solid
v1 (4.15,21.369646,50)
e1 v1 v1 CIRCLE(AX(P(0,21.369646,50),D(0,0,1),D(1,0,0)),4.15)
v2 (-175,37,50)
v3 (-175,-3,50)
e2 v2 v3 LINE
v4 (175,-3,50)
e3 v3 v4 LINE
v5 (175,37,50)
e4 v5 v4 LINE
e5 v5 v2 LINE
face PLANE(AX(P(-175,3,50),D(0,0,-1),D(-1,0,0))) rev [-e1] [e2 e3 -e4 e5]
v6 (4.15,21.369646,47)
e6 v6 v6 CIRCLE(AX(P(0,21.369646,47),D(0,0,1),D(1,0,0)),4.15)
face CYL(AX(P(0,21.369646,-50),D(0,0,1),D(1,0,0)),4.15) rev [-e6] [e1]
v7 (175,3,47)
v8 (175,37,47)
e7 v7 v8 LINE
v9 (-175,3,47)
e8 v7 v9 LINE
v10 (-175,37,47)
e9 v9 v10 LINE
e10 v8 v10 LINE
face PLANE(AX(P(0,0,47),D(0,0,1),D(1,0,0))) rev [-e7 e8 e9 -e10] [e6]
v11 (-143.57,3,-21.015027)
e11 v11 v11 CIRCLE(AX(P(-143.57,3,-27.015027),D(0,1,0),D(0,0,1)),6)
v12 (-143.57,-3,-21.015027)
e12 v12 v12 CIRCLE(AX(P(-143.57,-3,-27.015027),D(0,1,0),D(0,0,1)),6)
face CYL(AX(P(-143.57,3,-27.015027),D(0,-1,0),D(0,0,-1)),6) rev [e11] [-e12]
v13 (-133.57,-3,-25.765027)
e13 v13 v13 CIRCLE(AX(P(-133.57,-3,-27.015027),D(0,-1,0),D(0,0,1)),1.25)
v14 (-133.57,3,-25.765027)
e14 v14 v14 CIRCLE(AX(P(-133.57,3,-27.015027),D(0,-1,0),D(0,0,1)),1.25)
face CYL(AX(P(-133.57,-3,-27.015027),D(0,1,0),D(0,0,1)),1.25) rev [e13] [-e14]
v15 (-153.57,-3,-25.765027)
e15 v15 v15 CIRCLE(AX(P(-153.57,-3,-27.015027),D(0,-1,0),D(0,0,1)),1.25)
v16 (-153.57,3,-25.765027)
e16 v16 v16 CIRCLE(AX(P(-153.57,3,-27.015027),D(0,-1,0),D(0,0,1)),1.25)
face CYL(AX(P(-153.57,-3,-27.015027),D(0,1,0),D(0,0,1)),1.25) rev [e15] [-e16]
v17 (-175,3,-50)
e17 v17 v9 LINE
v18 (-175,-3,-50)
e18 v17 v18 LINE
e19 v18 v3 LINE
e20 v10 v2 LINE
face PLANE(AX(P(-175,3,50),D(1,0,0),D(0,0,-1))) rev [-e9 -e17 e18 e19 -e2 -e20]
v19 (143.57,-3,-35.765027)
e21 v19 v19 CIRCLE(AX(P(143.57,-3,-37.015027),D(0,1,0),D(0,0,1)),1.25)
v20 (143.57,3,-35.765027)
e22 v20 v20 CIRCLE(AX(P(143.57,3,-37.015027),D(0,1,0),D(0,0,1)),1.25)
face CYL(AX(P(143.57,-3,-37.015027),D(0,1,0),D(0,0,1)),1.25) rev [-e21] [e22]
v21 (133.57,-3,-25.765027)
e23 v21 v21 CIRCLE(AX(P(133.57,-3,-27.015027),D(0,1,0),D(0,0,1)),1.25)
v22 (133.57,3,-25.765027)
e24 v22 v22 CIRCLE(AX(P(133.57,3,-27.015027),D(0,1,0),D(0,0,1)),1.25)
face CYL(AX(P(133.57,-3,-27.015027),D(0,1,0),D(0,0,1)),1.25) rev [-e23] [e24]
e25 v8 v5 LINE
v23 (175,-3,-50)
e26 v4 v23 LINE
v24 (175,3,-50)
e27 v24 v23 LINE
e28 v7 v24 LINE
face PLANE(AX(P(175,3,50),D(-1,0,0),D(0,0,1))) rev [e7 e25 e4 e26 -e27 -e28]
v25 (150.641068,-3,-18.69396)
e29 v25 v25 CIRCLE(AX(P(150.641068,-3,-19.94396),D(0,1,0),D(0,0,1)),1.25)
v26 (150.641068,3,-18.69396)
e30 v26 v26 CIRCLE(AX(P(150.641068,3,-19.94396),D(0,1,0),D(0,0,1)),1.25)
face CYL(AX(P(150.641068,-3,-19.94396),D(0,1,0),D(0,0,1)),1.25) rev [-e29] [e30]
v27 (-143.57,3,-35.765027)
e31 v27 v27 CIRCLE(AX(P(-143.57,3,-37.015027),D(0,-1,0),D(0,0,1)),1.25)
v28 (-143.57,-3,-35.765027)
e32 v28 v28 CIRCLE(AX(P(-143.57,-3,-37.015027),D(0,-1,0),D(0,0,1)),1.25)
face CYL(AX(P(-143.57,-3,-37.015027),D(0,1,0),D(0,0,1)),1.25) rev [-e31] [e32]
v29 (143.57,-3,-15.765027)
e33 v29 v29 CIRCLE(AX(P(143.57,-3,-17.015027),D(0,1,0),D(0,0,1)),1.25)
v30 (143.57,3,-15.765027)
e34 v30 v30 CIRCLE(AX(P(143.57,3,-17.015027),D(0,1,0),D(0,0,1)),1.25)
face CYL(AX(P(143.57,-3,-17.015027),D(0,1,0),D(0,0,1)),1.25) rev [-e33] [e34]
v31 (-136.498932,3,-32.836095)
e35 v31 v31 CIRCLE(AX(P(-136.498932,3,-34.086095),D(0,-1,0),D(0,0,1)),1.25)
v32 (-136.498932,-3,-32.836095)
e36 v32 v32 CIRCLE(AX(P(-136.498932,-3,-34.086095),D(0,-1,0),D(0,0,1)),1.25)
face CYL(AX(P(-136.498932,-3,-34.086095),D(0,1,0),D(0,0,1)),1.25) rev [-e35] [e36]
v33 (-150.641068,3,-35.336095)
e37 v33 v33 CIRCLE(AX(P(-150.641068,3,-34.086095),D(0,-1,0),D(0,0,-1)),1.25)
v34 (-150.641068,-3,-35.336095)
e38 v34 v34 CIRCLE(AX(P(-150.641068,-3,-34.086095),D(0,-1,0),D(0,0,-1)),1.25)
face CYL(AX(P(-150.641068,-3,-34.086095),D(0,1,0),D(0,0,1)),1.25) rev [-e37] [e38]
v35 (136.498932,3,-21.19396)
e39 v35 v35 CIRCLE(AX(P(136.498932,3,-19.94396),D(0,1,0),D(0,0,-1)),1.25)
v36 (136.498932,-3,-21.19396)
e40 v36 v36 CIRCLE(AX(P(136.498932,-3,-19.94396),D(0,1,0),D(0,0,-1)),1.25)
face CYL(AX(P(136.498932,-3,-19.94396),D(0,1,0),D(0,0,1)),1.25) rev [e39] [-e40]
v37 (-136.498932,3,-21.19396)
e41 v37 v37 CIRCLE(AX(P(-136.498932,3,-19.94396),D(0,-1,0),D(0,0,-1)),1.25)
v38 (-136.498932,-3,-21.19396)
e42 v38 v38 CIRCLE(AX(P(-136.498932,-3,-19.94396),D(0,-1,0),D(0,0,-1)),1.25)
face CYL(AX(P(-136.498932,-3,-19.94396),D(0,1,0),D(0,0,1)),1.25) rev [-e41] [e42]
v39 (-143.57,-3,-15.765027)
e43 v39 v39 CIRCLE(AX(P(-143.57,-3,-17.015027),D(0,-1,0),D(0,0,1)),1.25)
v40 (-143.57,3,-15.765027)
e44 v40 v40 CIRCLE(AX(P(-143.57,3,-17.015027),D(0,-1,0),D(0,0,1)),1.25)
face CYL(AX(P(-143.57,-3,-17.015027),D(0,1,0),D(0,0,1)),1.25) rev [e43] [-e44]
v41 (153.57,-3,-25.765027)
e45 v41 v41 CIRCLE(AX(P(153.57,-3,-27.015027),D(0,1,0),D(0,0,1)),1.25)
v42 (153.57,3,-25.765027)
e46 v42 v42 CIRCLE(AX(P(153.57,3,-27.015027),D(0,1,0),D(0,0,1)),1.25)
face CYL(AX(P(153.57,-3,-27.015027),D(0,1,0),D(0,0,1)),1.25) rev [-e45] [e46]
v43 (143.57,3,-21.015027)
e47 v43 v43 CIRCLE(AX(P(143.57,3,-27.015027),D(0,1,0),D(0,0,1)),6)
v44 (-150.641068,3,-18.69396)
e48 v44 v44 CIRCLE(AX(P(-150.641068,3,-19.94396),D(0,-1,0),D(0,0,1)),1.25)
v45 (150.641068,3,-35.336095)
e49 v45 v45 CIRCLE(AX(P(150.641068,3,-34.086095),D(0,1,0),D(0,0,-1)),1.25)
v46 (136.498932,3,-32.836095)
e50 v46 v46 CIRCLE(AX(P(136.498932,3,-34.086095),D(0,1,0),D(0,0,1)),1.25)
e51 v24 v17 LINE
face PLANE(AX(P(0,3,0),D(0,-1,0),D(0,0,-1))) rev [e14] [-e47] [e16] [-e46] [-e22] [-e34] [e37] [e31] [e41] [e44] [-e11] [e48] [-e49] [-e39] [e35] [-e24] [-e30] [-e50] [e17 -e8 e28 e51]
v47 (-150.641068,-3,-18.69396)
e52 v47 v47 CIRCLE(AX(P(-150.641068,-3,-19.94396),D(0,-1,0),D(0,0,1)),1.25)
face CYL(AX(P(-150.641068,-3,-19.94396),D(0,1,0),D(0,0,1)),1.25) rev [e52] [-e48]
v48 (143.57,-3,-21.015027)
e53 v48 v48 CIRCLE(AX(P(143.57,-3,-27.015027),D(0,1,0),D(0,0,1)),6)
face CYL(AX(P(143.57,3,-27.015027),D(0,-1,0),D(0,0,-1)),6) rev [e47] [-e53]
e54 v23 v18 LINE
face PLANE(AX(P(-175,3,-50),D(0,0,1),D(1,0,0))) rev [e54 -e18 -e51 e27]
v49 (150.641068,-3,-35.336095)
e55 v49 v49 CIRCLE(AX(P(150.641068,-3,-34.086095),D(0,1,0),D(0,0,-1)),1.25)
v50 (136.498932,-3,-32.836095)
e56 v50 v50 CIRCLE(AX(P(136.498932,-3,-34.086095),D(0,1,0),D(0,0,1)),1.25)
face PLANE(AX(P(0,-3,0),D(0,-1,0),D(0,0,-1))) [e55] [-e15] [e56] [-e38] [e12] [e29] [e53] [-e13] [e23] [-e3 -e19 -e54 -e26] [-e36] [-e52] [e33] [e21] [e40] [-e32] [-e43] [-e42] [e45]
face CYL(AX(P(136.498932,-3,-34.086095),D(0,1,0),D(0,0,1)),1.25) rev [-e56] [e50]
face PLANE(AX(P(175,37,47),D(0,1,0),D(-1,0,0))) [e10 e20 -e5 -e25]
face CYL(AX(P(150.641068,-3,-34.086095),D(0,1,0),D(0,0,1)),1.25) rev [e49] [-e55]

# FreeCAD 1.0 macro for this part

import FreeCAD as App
import Part
import Sketcher

V = App.Vector
Q = App.Units.Quantity

doc = App.newDocument("Part")
params = doc.addObject("Spreadsheet::Sheet", "Params")
for row, (alias, value) in enumerate([
    ("sketch1_diameter", "12 mm"),
    ("sketch1_width", "350 mm"),
    ("sketch1_height", "100 mm"),
    ("pad1_length", "6 mm"),
    ("sketch2_width", "350 mm"),
    ("sketch2_height", "40 mm"),
    ("pad2_length", "3 mm"),
    ("sketch3_diameter", "8.3 mm"),
    ("sketch4_diameter", "2.5 mm"),
], start=1):
    params.set(f"A{row}", alias)
    params.set(f"B{row}", "=" + value)
    params.setAlias(f"B{row}", alias)

body = doc.addObject("PartDesign::Body", "Body")

# Sketch on XZ plane
sketch1 = doc.addObject("Sketcher::SketchObject", "Sketch")
body.addObject(sketch1)
sketch1.AttachmentSupport = (doc.XZ_Plane, [""])
sketch1.MapMode = "FlatFace"
sketch1.addGeometry(Part.LineSegment(V(-175, -50, 0), V(-175, 50, 0)), False)
sketch1.addGeometry(Part.LineSegment(V(-175, 50, 0), V(175, 50, 0)), False)
sketch1.addGeometry(Part.LineSegment(V(175, 50, 0), V(175, -50, 0)), False)
sketch1.addGeometry(Part.LineSegment(V(175, -50, 0), V(-175, -50, 0)), False)
sketch1.addGeometry(Part.Circle(V(-144, -27, 0), V(0, 0, 1), 6), False)
sketch1.addGeometry(Part.Circle(V(144, -27, 0), V(0, 0, 1), 6), False)
sketch1.addConstraint(Sketcher.Constraint("Coincident", 0, 2, 1, 1))
sketch1.addConstraint(Sketcher.Constraint("Coincident", 1, 2, 2, 1))
sketch1.addConstraint(Sketcher.Constraint("Coincident", 2, 2, 3, 1))
sketch1.addConstraint(Sketcher.Constraint("Coincident", 3, 2, 0, 1))
sketch1.addConstraint(Sketcher.Constraint("Vertical", 0))
sketch1.addConstraint(Sketcher.Constraint("Horizontal", 1))
sketch1.addConstraint(Sketcher.Constraint("Vertical", 2))
sketch1.addConstraint(Sketcher.Constraint("Horizontal", 3))
sketch1.addConstraint(Sketcher.Constraint("Equal", 4, 5))
sketch1.addConstraint(Sketcher.Constraint("Symmetric", 0, 2, 2, 2, -1, 1))
sketch1.addConstraint(Sketcher.Constraint("Symmetric", 4, 3, 5, 3, -2))
sketch1.addConstraint(Sketcher.Constraint("Diameter", 4, Q("12 mm")))
sketch1.addConstraint(Sketcher.Constraint("DistanceX", 1, 1, 1, 2, Q("350 mm")))
sketch1.addConstraint(Sketcher.Constraint("DistanceY", 0, 1, 0, 2, Q("100 mm")))
sketch1.addConstraint(Sketcher.Constraint("DistanceX", 4, 3, -1, 1, Q("143.57 mm")))
sketch1.addConstraint(Sketcher.Constraint("DistanceY", 4, 3, -1, 1, Q("27.015027 mm")))
sketch1.setExpression("Constraints[11]", "Params.sketch1_diameter")
sketch1.setExpression("Constraints[12]", "Params.sketch1_width")
sketch1.setExpression("Constraints[13]", "Params.sketch1_height")
pad1 = doc.addObject("PartDesign::Pad", "Pad")
body.addObject(pad1)
pad1.Profile = sketch1
pad1.setExpression("Length", "Params.pad1_length")
pad1.Midplane = True

# Sketch on XY plane
sketch2 = doc.addObject("Sketcher::SketchObject", "Sketch001")
body.addObject(sketch2)
sketch2.AttachmentSupport = (doc.XY_Plane, [""])
sketch2.MapMode = "FlatFace"
sketch2.AttachmentOffset = App.Placement(V(0, 0, 50), App.Rotation())
sketch2.addGeometry(Part.LineSegment(V(-175, 37, 0), V(-175, -3, 0)), False)
sketch2.addGeometry(Part.LineSegment(V(-175, -3, 0), V(175, -3, 0)), False)
sketch2.addGeometry(Part.LineSegment(V(175, -3, 0), V(175, 37, 0)), False)
sketch2.addGeometry(Part.LineSegment(V(175, 37, 0), V(-175, 37, 0)), False)
sketch2.addConstraint(Sketcher.Constraint("Coincident", 0, 2, 1, 1))
sketch2.addConstraint(Sketcher.Constraint("Coincident", 1, 2, 2, 1))
sketch2.addConstraint(Sketcher.Constraint("Coincident", 2, 2, 3, 1))
sketch2.addConstraint(Sketcher.Constraint("Coincident", 3, 2, 0, 1))
sketch2.addConstraint(Sketcher.Constraint("Vertical", 0))
sketch2.addConstraint(Sketcher.Constraint("Horizontal", 1))
sketch2.addConstraint(Sketcher.Constraint("Vertical", 2))
sketch2.addConstraint(Sketcher.Constraint("Horizontal", 3))
sketch2.addConstraint(Sketcher.Constraint("DistanceX", 1, 1, 1, 2, Q("350 mm")))
sketch2.addConstraint(Sketcher.Constraint("DistanceY", 0, 2, 0, 1, Q("40 mm")))
sketch2.addConstraint(Sketcher.Constraint("DistanceX", 0, 2, -1, 1, Q("175 mm")))
sketch2.addConstraint(Sketcher.Constraint("DistanceY", 0, 2, -1, 1, Q("3 mm")))
sketch2.setExpression("Constraints[8]", "Params.sketch2_width")
sketch2.setExpression("Constraints[9]", "Params.sketch2_height")
pad2 = doc.addObject("PartDesign::Pad", "Pad001")
body.addObject(pad2)
pad2.Profile = sketch2
pad2.setExpression("Length", "Params.pad2_length")
pad2.Reversed = True

# Sketch on XY plane
sketch3 = doc.addObject("Sketcher::SketchObject", "Sketch002")
body.addObject(sketch3)
sketch3.AttachmentSupport = (doc.XY_Plane, [""])
sketch3.MapMode = "FlatFace"
sketch3.AttachmentOffset = App.Placement(V(0, 0, 50), App.Rotation())
sketch3.addGeometry(Part.Circle(V(0, 21.4, 0), V(0, 0, 1), 4.2), False)
sketch3.addConstraint(Sketcher.Constraint("PointOnObject", 0, 3, -2))
sketch3.addConstraint(Sketcher.Constraint("Diameter", 0, Q("8.3 mm")))
sketch3.addConstraint(Sketcher.Constraint("DistanceY", -1, 1, 0, 3, Q("21.369646 mm")))
sketch3.setExpression("Constraints[1]", "Params.sketch3_diameter")
pocket1 = doc.addObject("PartDesign::Pocket", "Pocket")
body.addObject(pocket1)
pocket1.Profile = sketch3
pocket1.Type = "ThroughAll"

# Sketch on XZ plane
sketch4 = doc.addObject("Sketcher::SketchObject", "Sketch003")
body.addObject(sketch4)
sketch4.AttachmentSupport = (doc.XZ_Plane, [""])
sketch4.MapMode = "FlatFace"
sketch4.AttachmentOffset = App.Placement(V(0, 0, -3), App.Rotation())
sketch4.addGeometry(Part.Circle(V(143.6, -37, 0), V(0, 0, 1), 1.2), False)
sketch4.addGeometry(Part.Circle(V(153.6, -27, 0), V(0, 0, 1), 1.2), False)
sketch4.addGeometry(Part.Circle(V(143.6, -17, 0), V(0, 0, 1), 1.2), False)
sketch4.addGeometry(Part.Circle(V(133.6, -27, 0), V(0, 0, 1), 1.2), False)
sketch4.addGeometry(Part.Circle(V(136.5, -34.1, 0), V(0, 0, 1), 1.2), False)
sketch4.addGeometry(Part.Circle(V(150.6, -34.1, 0), V(0, 0, 1), 1.2), False)
sketch4.addGeometry(Part.Circle(V(150.6, -19.9, 0), V(0, 0, 1), 1.2), False)
sketch4.addGeometry(Part.Circle(V(136.5, -19.9, 0), V(0, 0, 1), 1.2), False)
sketch4.addConstraint(Sketcher.Constraint("Equal", 0, 1))
sketch4.addConstraint(Sketcher.Constraint("Equal", 1, 2))
sketch4.addConstraint(Sketcher.Constraint("Equal", 2, 3))
sketch4.addConstraint(Sketcher.Constraint("Equal", 3, 4))
sketch4.addConstraint(Sketcher.Constraint("Equal", 4, 5))
sketch4.addConstraint(Sketcher.Constraint("Equal", 5, 6))
sketch4.addConstraint(Sketcher.Constraint("Equal", 6, 7))
sketch4.addConstraint(Sketcher.Constraint("Horizontal", 1, 3, 3, 3))
sketch4.addConstraint(Sketcher.Constraint("Horizontal", 4, 3, 5, 3))
sketch4.addConstraint(Sketcher.Constraint("Horizontal", 6, 3, 7, 3))
sketch4.addConstraint(Sketcher.Constraint("Vertical", 0, 3, 2, 3))
sketch4.addConstraint(Sketcher.Constraint("Vertical", 5, 3, 6, 3))
sketch4.addConstraint(Sketcher.Constraint("Vertical", 4, 3, 7, 3))
sketch4.addConstraint(Sketcher.Constraint("Diameter", 0, Q("2.5 mm")))
sketch4.addConstraint(Sketcher.Constraint("DistanceX", 0, 3, 1, 3, Q("10 mm")))
sketch4.addConstraint(Sketcher.Constraint("DistanceY", 0, 3, 1, 3, Q("10 mm")))
sketch4.addConstraint(Sketcher.Constraint("DistanceY", 1, 3, 2, 3, Q("10 mm")))
sketch4.addConstraint(Sketcher.Constraint("DistanceX", 3, 3, 2, 3, Q("10 mm")))
sketch4.addConstraint(Sketcher.Constraint("DistanceX", -1, 1, 0, 3, Q("143.57 mm")))
sketch4.addConstraint(Sketcher.Constraint("DistanceY", 6, 3, -1, 1, Q("19.94396 mm")))
sketch4.addConstraint(Sketcher.Constraint("DistanceY", 0, 3, -1, 1, Q("37.015027 mm")))
sketch4.addConstraint(Sketcher.Constraint("DistanceX", -1, 1, 4, 3, Q("136.498932 mm")))
sketch4.addConstraint(Sketcher.Constraint("DistanceY", 4, 3, -1, 1, Q("34.086095 mm")))
sketch4.addConstraint(Sketcher.Constraint("DistanceX", -1, 1, 5, 3, Q("150.641068 mm")))
sketch4.setExpression("Constraints[13]", "Params.sketch4_diameter")
pocket2 = doc.addObject("PartDesign::Pocket", "Pocket001")
body.addObject(pocket2)
pocket2.Profile = sketch4
pocket2.Type = "ThroughAll"
pocket2.Reversed = True
doc.recompute()

mirrored = doc.addObject("PartDesign::Mirrored", "Mirrored")
body.addObject(mirrored)
mirrored.Originals = [pocket2]
mirrored.MirrorPlane = (doc.YZ_Plane, [""])
body.Tip = mirrored

doc.recompute()
